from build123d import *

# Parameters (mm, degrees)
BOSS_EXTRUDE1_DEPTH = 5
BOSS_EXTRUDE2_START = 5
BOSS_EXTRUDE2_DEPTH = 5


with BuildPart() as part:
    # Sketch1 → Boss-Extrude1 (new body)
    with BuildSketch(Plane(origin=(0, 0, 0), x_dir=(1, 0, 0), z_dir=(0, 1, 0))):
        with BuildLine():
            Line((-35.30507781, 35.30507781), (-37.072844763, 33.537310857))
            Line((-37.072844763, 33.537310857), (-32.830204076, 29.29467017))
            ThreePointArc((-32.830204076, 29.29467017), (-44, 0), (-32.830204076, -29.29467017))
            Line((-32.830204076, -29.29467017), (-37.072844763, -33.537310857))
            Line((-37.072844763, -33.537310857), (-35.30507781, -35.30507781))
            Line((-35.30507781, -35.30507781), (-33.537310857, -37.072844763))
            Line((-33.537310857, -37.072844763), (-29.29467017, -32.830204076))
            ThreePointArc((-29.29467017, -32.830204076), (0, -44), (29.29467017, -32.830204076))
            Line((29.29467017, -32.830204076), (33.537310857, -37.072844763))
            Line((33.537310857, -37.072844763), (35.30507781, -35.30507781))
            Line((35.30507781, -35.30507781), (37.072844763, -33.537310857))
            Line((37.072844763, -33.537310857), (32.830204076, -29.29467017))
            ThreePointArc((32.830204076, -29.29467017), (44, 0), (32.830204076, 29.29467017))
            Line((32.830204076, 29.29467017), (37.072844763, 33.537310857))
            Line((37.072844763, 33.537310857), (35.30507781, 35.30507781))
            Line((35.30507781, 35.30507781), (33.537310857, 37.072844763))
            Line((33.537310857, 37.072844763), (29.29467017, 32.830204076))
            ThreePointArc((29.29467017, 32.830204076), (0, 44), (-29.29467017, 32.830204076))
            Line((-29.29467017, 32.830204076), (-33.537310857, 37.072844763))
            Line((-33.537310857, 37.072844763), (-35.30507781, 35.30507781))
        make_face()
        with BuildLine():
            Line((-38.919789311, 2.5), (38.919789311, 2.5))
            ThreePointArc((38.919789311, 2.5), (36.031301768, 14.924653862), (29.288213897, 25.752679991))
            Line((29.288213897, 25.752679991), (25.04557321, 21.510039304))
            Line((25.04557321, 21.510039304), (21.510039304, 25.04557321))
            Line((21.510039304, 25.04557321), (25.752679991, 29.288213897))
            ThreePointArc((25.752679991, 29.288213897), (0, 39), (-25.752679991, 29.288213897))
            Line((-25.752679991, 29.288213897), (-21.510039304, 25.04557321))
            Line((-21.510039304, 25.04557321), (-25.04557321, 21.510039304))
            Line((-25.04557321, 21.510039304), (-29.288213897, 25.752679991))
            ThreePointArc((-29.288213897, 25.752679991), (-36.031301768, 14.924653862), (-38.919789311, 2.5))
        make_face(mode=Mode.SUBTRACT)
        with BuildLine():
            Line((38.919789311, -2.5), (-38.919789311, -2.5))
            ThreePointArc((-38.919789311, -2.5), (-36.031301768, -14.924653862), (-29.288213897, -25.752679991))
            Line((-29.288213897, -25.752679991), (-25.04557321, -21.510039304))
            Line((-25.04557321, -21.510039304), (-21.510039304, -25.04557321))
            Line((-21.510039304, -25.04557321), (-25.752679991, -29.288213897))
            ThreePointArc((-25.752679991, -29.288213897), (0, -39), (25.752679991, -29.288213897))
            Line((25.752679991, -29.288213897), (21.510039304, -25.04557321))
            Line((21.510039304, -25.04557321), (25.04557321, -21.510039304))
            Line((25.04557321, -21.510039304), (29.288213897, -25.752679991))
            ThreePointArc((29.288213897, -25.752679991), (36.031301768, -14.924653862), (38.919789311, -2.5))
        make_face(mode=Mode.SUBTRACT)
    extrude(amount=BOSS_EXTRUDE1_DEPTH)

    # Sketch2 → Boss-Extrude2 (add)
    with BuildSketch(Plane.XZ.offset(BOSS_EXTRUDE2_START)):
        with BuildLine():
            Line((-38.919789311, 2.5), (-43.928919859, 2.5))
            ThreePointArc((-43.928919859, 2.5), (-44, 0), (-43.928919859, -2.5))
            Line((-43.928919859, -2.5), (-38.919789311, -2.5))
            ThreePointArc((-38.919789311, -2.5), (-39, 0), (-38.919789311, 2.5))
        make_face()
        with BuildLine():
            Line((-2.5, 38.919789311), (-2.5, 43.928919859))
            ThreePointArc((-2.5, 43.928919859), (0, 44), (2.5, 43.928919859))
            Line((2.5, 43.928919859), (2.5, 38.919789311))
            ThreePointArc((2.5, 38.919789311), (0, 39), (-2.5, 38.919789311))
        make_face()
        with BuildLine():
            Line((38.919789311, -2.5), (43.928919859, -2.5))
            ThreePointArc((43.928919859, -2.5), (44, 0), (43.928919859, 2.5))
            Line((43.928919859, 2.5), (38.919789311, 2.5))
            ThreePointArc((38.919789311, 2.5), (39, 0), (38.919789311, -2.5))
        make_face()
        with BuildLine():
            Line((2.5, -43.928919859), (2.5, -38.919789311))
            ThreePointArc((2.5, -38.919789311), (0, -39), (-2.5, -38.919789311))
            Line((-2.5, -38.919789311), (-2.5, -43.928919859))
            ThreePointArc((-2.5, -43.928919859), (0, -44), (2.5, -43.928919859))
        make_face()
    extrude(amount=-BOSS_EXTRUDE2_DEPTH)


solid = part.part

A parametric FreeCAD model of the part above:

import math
import FreeCAD as App
import Part
import Sketcher
from FreeCAD import Vector
Q = App.Units.Quantity

doc = App.newDocument("Part")
body = doc.addObject("PartDesign::Body", "Body")

# Sketch on XZ plane
sketch1 = doc.addObject("Sketcher::SketchObject", "Sketch")
body.addObject(sketch1)
sketch1.AttachmentSupport = (doc.XZ_Plane, [""])
sketch1.MapMode = "FlatFace"
sketch1.addGeometry([
    Part.LineSegment(Vector(-37, -34, 0), Vector(-33, -29, 0)),  # 0
    Part.ArcOfCircle(Part.Circle(Vector(0, 0, 0), Vector(0, 0, 1), 44), math.radians(138), math.radians(222)),  # 1
    Part.LineSegment(Vector(-33, 29, 0), Vector(-37, 34, 0)),  # 2
    Part.LineSegment(Vector(-37, 34, 0), Vector(-34, 37, 0)),  # 3
    Part.LineSegment(Vector(-34, 37, 0), Vector(-29, 33, 0)),  # 4
    Part.ArcOfCircle(Part.Circle(Vector(0, 0, 0), Vector(0, 0, 1), 44), math.radians(48), math.radians(132)),  # 5
    Part.LineSegment(Vector(29, 33, 0), Vector(34, 37, 0)),  # 6
    Part.LineSegment(Vector(34, 37, 0), Vector(37, 34, 0)),  # 7
    Part.LineSegment(Vector(37, 34, 0), Vector(33, 29, 0)),  # 8
    Part.ArcOfCircle(Part.Circle(Vector(0, 0, 0), Vector(0, 0, 1), 44), math.radians(-42), math.radians(42)),  # 9
    Part.LineSegment(Vector(33, -29, 0), Vector(37, -34, 0)),  # 10
    Part.LineSegment(Vector(37, -34, 0), Vector(34, -37, 0)),  # 11
    Part.LineSegment(Vector(34, -37, 0), Vector(29, -33, 0)),  # 12
    Part.ArcOfCircle(Part.Circle(Vector(0, 0, 0), Vector(0, 0, 1), 44), math.radians(-132), math.radians(-48)),  # 13
    Part.LineSegment(Vector(-29, -33, 0), Vector(-34, -37, 0)),  # 14
    Part.LineSegment(Vector(-34, -37, 0), Vector(-37, -34, 0)),  # 15
    Part.LineSegment(Vector(-39, 2, 0), Vector(39, 2, 0)),  # 16
    Part.ArcOfCircle(Part.Circle(Vector(0, 0, 0), Vector(0, 0, 1), 39), math.radians(4), math.radians(41)),  # 17
    Part.LineSegment(Vector(29, 26, 0), Vector(25, 22, 0)),  # 18
    Part.LineSegment(Vector(25, 22, 0), Vector(22, 25, 0)),  # 19
    Part.LineSegment(Vector(22, 25, 0), Vector(26, 29, 0)),  # 20
    Part.ArcOfCircle(Part.Circle(Vector(0, 0, 0), Vector(0, 0, 1), 39), math.radians(49), math.radians(131)),  # 21
    Part.LineSegment(Vector(-26, 29, 0), Vector(-22, 25, 0)),  # 22
    Part.LineSegment(Vector(-22, 25, 0), Vector(-25, 22, 0)),  # 23
    Part.LineSegment(Vector(-25, 22, 0), Vector(-29, 26, 0)),  # 24
    Part.ArcOfCircle(Part.Circle(Vector(0, 0, 0), Vector(0, 0, 1), 39), math.radians(139), math.radians(176)),  # 25
    Part.LineSegment(Vector(39, -2, 0), Vector(-39, -2, 0)),  # 26
    Part.ArcOfCircle(Part.Circle(Vector(0, 0, 0), Vector(0, 0, 1), 39), math.radians(-176), math.radians(-139)),  # 27
    Part.LineSegment(Vector(-29, -26, 0), Vector(-25, -22, 0)),  # 28
    Part.LineSegment(Vector(-25, -22, 0), Vector(-22, -25, 0)),  # 29
    Part.LineSegment(Vector(-22, -25, 0), Vector(-26, -29, 0)),  # 30
    Part.ArcOfCircle(Part.Circle(Vector(0, 0, 0), Vector(0, 0, 1), 39), math.radians(-131), math.radians(-49)),  # 31
    Part.LineSegment(Vector(26, -29, 0), Vector(22, -25, 0)),  # 32
    Part.LineSegment(Vector(22, -25, 0), Vector(25, -22, 0)),  # 33
    Part.LineSegment(Vector(25, -22, 0), Vector(29, -26, 0)),  # 34
    Part.ArcOfCircle(Part.Circle(Vector(0, 0, 0), Vector(0, 0, 1), 39), math.radians(-41), math.radians(-4)),  # 35
], False)
sketch1.addConstraint([
    Sketcher.Constraint("Coincident", 0, 2, 1, 2),
    Sketcher.Constraint("Coincident", 1, 1, 2, 1),
    Sketcher.Constraint("Coincident", 2, 2, 3, 1),
    Sketcher.Constraint("Coincident", 3, 2, 4, 1),
    Sketcher.Constraint("Coincident", 4, 2, 5, 2),
    Sketcher.Constraint("Coincident", 5, 1, 6, 1),
    Sketcher.Constraint("Coincident", 6, 2, 7, 1),
    Sketcher.Constraint("Coincident", 7, 2, 8, 1),
    Sketcher.Constraint("Coincident", 8, 2, 9, 2),
    Sketcher.Constraint("Coincident", 9, 1, 10, 1),
    Sketcher.Constraint("Coincident", 10, 2, 11, 1),
    Sketcher.Constraint("Coincident", 11, 2, 12, 1),
    Sketcher.Constraint("Coincident", 12, 2, 13, 2),
    Sketcher.Constraint("Coincident", 13, 1, 14, 1),
    Sketcher.Constraint("Coincident", 14, 2, 15, 1),
    Sketcher.Constraint("Coincident", 15, 2, 0, 1),
    Sketcher.Constraint("Coincident", 16, 2, 17, 1),
    Sketcher.Constraint("Coincident", 17, 2, 18, 1),
    Sketcher.Constraint("Coincident", 18, 2, 19, 1),
    Sketcher.Constraint("Coincident", 19, 2, 20, 1),
    Sketcher.Constraint("Coincident", 20, 2, 21, 1),
    Sketcher.Constraint("Coincident", 21, 2, 22, 1),
    Sketcher.Constraint("Coincident", 22, 2, 23, 1),
    Sketcher.Constraint("Coincident", 23, 2, 24, 1),
    Sketcher.Constraint("Coincident", 24, 2, 25, 1),
    Sketcher.Constraint("Coincident", 25, 2, 16, 1),
    Sketcher.Constraint("Coincident", 26, 2, 27, 1),
    Sketcher.Constraint("Coincident", 27, 2, 28, 1),
    Sketcher.Constraint("Coincident", 28, 2, 29, 1),
    Sketcher.Constraint("Coincident", 29, 2, 30, 1),
    Sketcher.Constraint("Coincident", 30, 2, 31, 1),
    Sketcher.Constraint("Coincident", 31, 2, 32, 1),
    Sketcher.Constraint("Coincident", 32, 2, 33, 1),
    Sketcher.Constraint("Coincident", 33, 2, 34, 1),
    Sketcher.Constraint("Coincident", 34, 2, 35, 1),
    Sketcher.Constraint("Coincident", 35, 2, 26, 1),
    Sketcher.Constraint("Horizontal", 16),
    Sketcher.Constraint("Horizontal", 26),
    Sketcher.Constraint("Coincident", 1, 3, -1, 1),
    Sketcher.Constraint("Coincident", 5, 3, -1, 1),
    Sketcher.Constraint("Coincident", 9, 3, -1, 1),
    Sketcher.Constraint("Coincident", 13, 3, -1, 1),
    Sketcher.Constraint("Coincident", 17, 3, -1, 1),
    Sketcher.Constraint("Coincident", 21, 3, -1, 1),
    Sketcher.Constraint("Coincident", 25, 3, -1, 1),
    Sketcher.Constraint("Coincident", 27, 3, -1, 1),
    Sketcher.Constraint("Coincident", 31, 3, -1, 1),
    Sketcher.Constraint("Coincident", 35, 3, -1, 1),
    Sketcher.Constraint("Equal", 1, 5),
    Sketcher.Constraint("Equal", 5, 9),
    Sketcher.Constraint("Equal", 9, 13),
    Sketcher.Constraint("Equal", 17, 21),
    Sketcher.Constraint("Equal", 21, 25),
    Sketcher.Constraint("Equal", 25, 27),
    Sketcher.Constraint("Equal", 27, 31),
    Sketcher.Constraint("Equal", 31, 35),
    Sketcher.Constraint("Symmetric", 2, 2, 10, 2, -1, 1),
    Sketcher.Constraint("Symmetric", 3, 2, 11, 2, -1, 1),
    Sketcher.Constraint("Symmetric", 6, 2, 14, 2, -1, 1),
    Sketcher.Constraint("Symmetric", 7, 2, 15, 2, -1, 1),
    Sketcher.Constraint("Symmetric", 18, 2, 28, 2, -1, 1),
    Sketcher.Constraint("Symmetric", 19, 2, 29, 2, -1, 1),
    Sketcher.Constraint("Symmetric", 22, 2, 32, 2, -1, 1),
    Sketcher.Constraint("Symmetric", 23, 2, 33, 2, -1, 1),
    Sketcher.Constraint("Symmetric", 3, 2, 6, 2, -2),
    Sketcher.Constraint("Symmetric", 2, 2, 7, 2, -2),
    Sketcher.Constraint("Symmetric", 19, 2, 22, 2, -2),
    Sketcher.Constraint("Symmetric", 18, 2, 23, 2, -2),
    Sketcher.Constraint("Perpendicular", 0, 2),
    Sketcher.Constraint("Perpendicular", 2, 3),
    Sketcher.Constraint("Perpendicular", 3, 4),
    Sketcher.Constraint("Perpendicular", 4, 6),
    Sketcher.Constraint("Perpendicular", 6, 7),
    Sketcher.Constraint("Perpendicular", 7, 8),
    Sketcher.Constraint("Perpendicular", 8, 10),
    Sketcher.Constraint("Perpendicular", 11, 12),
    Sketcher.Constraint("Perpendicular", 12, 14),
    Sketcher.Constraint("Perpendicular", 15, 18),
    Sketcher.Constraint("Perpendicular", 18, 19),
    Sketcher.Constraint("Perpendicular", 19, 20),
    Sketcher.Constraint("Perpendicular", 20, 22),
    Sketcher.Constraint("Perpendicular", 23, 24),
    Sketcher.Constraint("Perpendicular", 24, 28),
    Sketcher.Constraint("Perpendicular", 29, 30),
    Sketcher.Constraint("Perpendicular", 30, 32),
    Sketcher.Constraint("Perpendicular", 33, 34),
    Sketcher.Constraint("Vertical", 25, 2, 26, 2),
    Sketcher.Constraint("Equal", 2, 4),
    Sketcher.Constraint("Equal", 14, 18),
    Sketcher.Constraint("Equal", 15, 19),
    Sketcher.Constraint("Equal", 18, 20),
    Sketcher.Constraint("Radius", 1, Q("44 mm")),
    Sketcher.Constraint("Radius", 17, Q("39 mm")),
    Sketcher.Constraint("Distance", 0, Q("6 mm")),
    Sketcher.Constraint("Distance", 3, Q("5 mm")),
    Sketcher.Constraint("DistanceY", 26, 2, 25, 2, Q("5 mm")),
])
pad1 = doc.addObject("PartDesign::Pad", "Pad")
body.addObject(pad1)
pad1.Profile = sketch1
pad1.Length = 5
pad1.Reversed = True

# Sketch on XZ plane
sketch2 = doc.addObject("Sketcher::SketchObject", "Sketch001")
body.addObject(sketch2)
sketch2.AttachmentSupport = (doc.XZ_Plane, [""])
sketch2.MapMode = "FlatFace"
sketch2.AttachmentOffset = App.Placement(Vector(0, 0, 5), App.Rotation())
sketch2.addGeometry([
    Part.LineSegment(Vector(-39, 2, 0), Vector(-44, 2, 0)),  # 0
    Part.ArcOfCircle(Part.Circle(Vector(0, 0, 0), Vector(0, 0, 1), 44), math.radians(176.74), math.radians(183.26)),  # 1
    Part.LineSegment(Vector(-44, -2, 0), Vector(-39, -2, 0)),  # 2
    Part.ArcOfCircle(Part.Circle(Vector(0, 0, 0), Vector(0, 0, 1), 39), math.radians(176.32), math.radians(183.68)),  # 3
    Part.LineSegment(Vector(-2, 44, 0), Vector(-2, 39, 0)),  # 4
    Part.ArcOfCircle(Part.Circle(Vector(0, 0, 0), Vector(0, 0, 1), 39), math.radians(86.32), math.radians(93.68)),  # 5
    Part.LineSegment(Vector(2, 39, 0), Vector(2, 44, 0)),  # 6
    Part.ArcOfCircle(Part.Circle(Vector(0, 0, 0), Vector(0, 0, 1), 44), math.radians(86.74), math.radians(93.26)),  # 7
    Part.LineSegment(Vector(39, -2, 0), Vector(44, -2, 0)),  # 8
    Part.ArcOfCircle(Part.Circle(Vector(0, 0, 0), Vector(0, 0, 1), 44), math.radians(-3.26), math.radians(3.26)),  # 9
    Part.LineSegment(Vector(44, 2, 0), Vector(39, 2, 0)),  # 10
    Part.ArcOfCircle(Part.Circle(Vector(0, 0, 0), Vector(0, 0, 1), 39), math.radians(-3.68), math.radians(3.68)),  # 11
    Part.LineSegment(Vector(2, -44, 0), Vector(2, -39, 0)),  # 12
    Part.ArcOfCircle(Part.Circle(Vector(0, 0, 0), Vector(0, 0, 1), 39), math.radians(-93.68), math.radians(-86.32)),  # 13
    Part.LineSegment(Vector(-2, -39, 0), Vector(-2, -44, 0)),  # 14
    Part.ArcOfCircle(Part.Circle(Vector(0, 0, 0), Vector(0, 0, 1), 44), math.radians(-93.26), math.radians(-86.74)),  # 15
], False)
sketch2.addConstraint([
    Sketcher.Constraint("Coincident", 0, 2, 1, 1),
    Sketcher.Constraint("Coincident", 1, 2, 2, 1),
    Sketcher.Constraint("Coincident", 2, 2, 3, 2),
    Sketcher.Constraint("Coincident", 3, 1, 0, 1),
    Sketcher.Constraint("Coincident", 4, 2, 5, 2),
    Sketcher.Constraint("Coincident", 5, 1, 6, 1),
    Sketcher.Constraint("Coincident", 6, 2, 7, 1),
    Sketcher.Constraint("Coincident", 7, 2, 4, 1),
    Sketcher.Constraint("Coincident", 8, 2, 9, 1),
    Sketcher.Constraint("Coincident", 9, 2, 10, 1),
    Sketcher.Constraint("Coincident", 10, 2, 11, 2),
    Sketcher.Constraint("Coincident", 11, 1, 8, 1),
    Sketcher.Constraint("Coincident", 12, 2, 13, 2),
    Sketcher.Constraint("Coincident", 13, 1, 14, 1),
    Sketcher.Constraint("Coincident", 14, 2, 15, 1),
    Sketcher.Constraint("Coincident", 15, 2, 12, 1),
    Sketcher.Constraint("Horizontal", 0),
    Sketcher.Constraint("Horizontal", 2),
    Sketcher.Constraint("Vertical", 4),
    Sketcher.Constraint("Vertical", 6),
    Sketcher.Constraint("Horizontal", 8),
    Sketcher.Constraint("Horizontal", 10),
    Sketcher.Constraint("Vertical", 12),
    Sketcher.Constraint("Vertical", 14),
    Sketcher.Constraint("Coincident", 1, 3, -1, 1),
    Sketcher.Constraint("Coincident", 3, 3, -1, 1),
    Sketcher.Constraint("Coincident", 5, 3, -1, 1),
    Sketcher.Constraint("Coincident", 7, 3, -1, 1),
    Sketcher.Constraint("Coincident", 9, 3, -1, 1),
    Sketcher.Constraint("Coincident", 11, 3, -1, 1),
    Sketcher.Constraint("Coincident", 13, 3, -1, 1),
    Sketcher.Constraint("Coincident", 15, 3, -1, 1),
    Sketcher.Constraint("Equal", 3, 5),
    Sketcher.Constraint("Equal", 1, 7),
    Sketcher.Constraint("Equal", 7, 9),
    Sketcher.Constraint("Equal", 5, 11),
    Sketcher.Constraint("Equal", 11, 13),
    Sketcher.Constraint("Equal", 9, 15),
    Sketcher.Constraint("Horizontal", 4, 2, 5, 1),
    Sketcher.Constraint("Horizontal", 2, 2, 8, 2),
    Sketcher.Constraint("Horizontal", 3, 1, 9, 2),
    Sketcher.Constraint("Horizontal", 12, 2, 13, 1),
    Sketcher.Constraint("Vertical", 0, 2, 1, 2),
    Sketcher.Constraint("Vertical", 6, 2, 12, 2),
    Sketcher.Constraint("Radius", 1, Q("44 mm")),
    Sketcher.Constraint("Radius", 3, Q("39 mm")),
    Sketcher.Constraint("DistanceY", 1, 2, 0, 2, Q("5 mm")),
    Sketcher.Constraint("DistanceX", 4, 2, 5, 1, Q("5 mm")),
])
pad2 = doc.addObject("PartDesign::Pad", "Pad001")
body.addObject(pad2)
pad2.Profile = sketch2
pad2.Length = 5
pad2.Reversed = True

doc.recompute()
